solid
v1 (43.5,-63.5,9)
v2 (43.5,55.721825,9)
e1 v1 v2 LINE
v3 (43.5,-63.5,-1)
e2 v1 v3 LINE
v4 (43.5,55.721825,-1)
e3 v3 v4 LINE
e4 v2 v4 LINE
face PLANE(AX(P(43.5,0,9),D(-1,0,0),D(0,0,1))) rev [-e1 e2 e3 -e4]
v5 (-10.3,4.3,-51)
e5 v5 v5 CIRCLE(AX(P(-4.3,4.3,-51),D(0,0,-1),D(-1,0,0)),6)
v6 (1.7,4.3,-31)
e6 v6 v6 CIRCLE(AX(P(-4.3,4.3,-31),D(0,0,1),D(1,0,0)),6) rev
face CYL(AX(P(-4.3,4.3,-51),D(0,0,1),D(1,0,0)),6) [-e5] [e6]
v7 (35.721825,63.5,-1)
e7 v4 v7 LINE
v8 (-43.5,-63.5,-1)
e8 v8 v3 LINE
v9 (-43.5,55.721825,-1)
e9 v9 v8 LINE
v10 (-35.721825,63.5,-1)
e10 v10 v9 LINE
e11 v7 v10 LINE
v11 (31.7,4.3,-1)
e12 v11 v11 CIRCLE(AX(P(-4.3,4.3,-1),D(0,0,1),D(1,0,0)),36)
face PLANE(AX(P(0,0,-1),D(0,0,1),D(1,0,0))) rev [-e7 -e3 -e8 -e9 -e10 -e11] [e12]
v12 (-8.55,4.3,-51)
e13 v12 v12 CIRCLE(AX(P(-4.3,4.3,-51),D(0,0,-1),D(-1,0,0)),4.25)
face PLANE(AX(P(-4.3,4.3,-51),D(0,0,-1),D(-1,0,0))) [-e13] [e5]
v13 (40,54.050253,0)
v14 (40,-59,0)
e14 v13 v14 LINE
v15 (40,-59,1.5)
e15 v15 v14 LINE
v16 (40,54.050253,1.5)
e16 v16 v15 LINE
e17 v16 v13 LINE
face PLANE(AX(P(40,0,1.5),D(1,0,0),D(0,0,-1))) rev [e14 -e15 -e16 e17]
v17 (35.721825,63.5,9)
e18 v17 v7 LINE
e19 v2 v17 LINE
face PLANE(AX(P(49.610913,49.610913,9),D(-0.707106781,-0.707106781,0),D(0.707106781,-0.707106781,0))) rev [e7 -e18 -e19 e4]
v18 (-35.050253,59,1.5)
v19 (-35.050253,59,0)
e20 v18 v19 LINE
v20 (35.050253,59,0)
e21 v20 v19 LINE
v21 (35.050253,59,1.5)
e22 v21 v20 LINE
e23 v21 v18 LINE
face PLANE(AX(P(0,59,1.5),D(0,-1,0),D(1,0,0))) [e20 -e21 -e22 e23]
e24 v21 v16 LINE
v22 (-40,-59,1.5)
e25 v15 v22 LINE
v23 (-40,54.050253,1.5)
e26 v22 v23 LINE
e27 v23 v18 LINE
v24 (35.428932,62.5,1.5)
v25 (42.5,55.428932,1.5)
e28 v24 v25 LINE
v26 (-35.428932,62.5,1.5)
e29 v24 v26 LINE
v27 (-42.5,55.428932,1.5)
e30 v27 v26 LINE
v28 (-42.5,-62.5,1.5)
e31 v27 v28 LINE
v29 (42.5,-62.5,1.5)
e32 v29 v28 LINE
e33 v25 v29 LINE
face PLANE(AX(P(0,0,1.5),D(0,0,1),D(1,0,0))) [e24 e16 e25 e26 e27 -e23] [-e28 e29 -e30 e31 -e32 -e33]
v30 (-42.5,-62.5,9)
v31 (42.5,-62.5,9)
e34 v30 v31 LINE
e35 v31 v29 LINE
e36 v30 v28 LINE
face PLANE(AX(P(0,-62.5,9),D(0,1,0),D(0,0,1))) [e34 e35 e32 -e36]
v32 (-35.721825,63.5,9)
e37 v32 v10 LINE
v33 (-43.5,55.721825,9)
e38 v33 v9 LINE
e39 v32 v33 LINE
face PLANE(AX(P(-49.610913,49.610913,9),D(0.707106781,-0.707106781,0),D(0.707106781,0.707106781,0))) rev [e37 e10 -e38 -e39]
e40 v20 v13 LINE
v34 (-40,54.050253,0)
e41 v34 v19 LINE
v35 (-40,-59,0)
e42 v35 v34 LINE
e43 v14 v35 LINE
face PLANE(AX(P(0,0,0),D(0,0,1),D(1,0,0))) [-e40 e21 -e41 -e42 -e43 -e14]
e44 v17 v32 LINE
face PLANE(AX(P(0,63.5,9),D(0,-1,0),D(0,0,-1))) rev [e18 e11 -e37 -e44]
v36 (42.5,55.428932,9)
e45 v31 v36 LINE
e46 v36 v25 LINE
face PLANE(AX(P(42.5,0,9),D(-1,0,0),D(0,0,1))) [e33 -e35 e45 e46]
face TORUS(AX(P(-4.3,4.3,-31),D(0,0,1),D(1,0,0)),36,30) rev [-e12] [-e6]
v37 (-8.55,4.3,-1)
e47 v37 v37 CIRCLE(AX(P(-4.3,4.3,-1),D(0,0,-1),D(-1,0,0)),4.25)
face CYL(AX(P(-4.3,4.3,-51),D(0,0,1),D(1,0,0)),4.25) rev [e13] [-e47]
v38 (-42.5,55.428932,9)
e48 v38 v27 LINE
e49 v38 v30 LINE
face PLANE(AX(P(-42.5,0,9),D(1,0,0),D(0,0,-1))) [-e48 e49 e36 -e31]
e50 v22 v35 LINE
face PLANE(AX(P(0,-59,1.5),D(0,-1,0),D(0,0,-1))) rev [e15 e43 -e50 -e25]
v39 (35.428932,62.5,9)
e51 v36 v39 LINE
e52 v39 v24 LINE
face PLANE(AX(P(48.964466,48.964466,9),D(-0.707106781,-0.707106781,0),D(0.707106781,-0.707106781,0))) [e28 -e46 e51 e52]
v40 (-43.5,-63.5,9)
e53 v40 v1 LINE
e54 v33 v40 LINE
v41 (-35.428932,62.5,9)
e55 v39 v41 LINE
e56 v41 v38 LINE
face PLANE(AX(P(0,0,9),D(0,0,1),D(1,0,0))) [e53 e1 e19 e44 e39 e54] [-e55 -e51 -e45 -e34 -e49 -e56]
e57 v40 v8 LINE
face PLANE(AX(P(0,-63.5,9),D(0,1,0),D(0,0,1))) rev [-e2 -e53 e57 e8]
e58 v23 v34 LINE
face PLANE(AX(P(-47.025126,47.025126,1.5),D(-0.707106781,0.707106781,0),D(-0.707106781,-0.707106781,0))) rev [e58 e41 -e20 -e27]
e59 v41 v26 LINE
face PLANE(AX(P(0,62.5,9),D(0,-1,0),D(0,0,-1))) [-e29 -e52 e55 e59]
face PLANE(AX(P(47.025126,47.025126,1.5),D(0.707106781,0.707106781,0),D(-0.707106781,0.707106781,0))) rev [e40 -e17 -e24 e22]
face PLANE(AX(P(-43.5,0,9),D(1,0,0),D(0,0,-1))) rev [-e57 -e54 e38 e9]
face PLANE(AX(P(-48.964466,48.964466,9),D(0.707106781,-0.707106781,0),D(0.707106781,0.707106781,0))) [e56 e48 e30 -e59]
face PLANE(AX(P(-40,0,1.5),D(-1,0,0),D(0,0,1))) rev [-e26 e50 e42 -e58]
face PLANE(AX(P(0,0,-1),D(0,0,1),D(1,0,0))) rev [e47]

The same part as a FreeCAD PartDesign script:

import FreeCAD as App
import Part
import Sketcher

V = App.Vector


def edges_at(feature, points):
    """Names of the edges that pass closest to the given points."""
    edges = feature.Shape.Edges
    near = lambda p: min(range(len(edges)), key=lambda i: edges[i].distToShape(Part.Vertex(*p))[0])
    return sorted({f"Edge{near(p) + 1}" for p in points})


def add_polygon(sketch, points):
    """Adds a closed chain of lines whose ends are joined by coincident constraints."""
    first, n = sketch.GeometryCount, len(points)
    for a, b in zip(points, points[1:] + points[:1]):
        sketch.addGeometry(Part.LineSegment(App.Vector(*a, 0), App.Vector(*b, 0)), False)
    for i in range(n):
        sketch.addConstraint(Sketcher.Constraint("Coincident", first + i, 2, first + (i + 1) % n, 1))

doc = App.newDocument("Part")
body = doc.addObject("PartDesign::Body", "Body")

sketch1 = body.newObject("Sketcher::SketchObject", "Sketch")
sketch1.AttachmentSupport = (doc.getObject("XY_Plane"), [""])
sketch1.MapMode = "FlatFace"
add_polygon(sketch1, [(-42, -62), (42, -62), (42, 55), (35, 62), (-35, 62), (-42, 55)])
add_polygon(sketch1, [(-40, 54), (-35, 59), (35, 59), (40, 54), (40, -59), (-40, -59)])
sketch1.addConstraint([
    Sketcher.Constraint("Horizontal", 0),
    Sketcher.Constraint("Vertical", 1),
    Sketcher.Constraint("Horizontal", 3),
    Sketcher.Constraint("Vertical", 5),
    Sketcher.Constraint("Horizontal", 7),
    Sketcher.Constraint("Vertical", 9),
    Sketcher.Constraint("Horizontal", 10),
    Sketcher.Constraint("Vertical", 11),
    Sketcher.Constraint("Symmetric", 1, 2, 4, 2, -2),
    Sketcher.Constraint("Symmetric", 8, 2, 11, 2, -2),
    Sketcher.Constraint("Perpendicular", 2, 4),
    Sketcher.Constraint("Parallel", 4, 6),
    Sketcher.Constraint("Perpendicular", 6, 8),
    Sketcher.Constraint("Equal", 2, 4),
    Sketcher.Constraint("DistanceX", 0, 1, 0, 2, 85.0),
    Sketcher.Constraint("DistanceX", 10, 2, 10, 1, 80.0),
    Sketcher.Constraint("Distance", 2, 10.0),
    Sketcher.Constraint("Distance", 6, 7.0),
    Sketcher.Constraint("DistanceY", -1, 1, 6, 2, 59.0),
    Sketcher.Constraint("DistanceY", 9, 2, -1, 1, 59.0),
    Sketcher.Constraint("DistanceY", 0, 2, 2, 2, 125.0),
    Sketcher.Constraint("DistanceY", 0, 2, -1, 1, 62.5),
])
pad1 = body.newObject("PartDesign::Pad", "Pad")
pad1.Profile = sketch1
pad1.Length = 1.5

sketch2 = body.newObject("Sketcher::SketchObject", "Sketch001")
sketch2.AttachmentSupport = (doc.getObject("XY_Plane"), [""])
sketch2.MapMode = "FlatFace"
add_polygon(sketch2, [(-44, -64), (44, -64), (44, 56), (36, 64), (-36, 64), (-44, 56)])
add_polygon(sketch2, [(42, 55), (42, -62), (-42, -62), (-42, 55), (-35, 62), (35, 62)])
sketch2.addConstraint([
    Sketcher.Constraint("Horizontal", 0),
    Sketcher.Constraint("Vertical", 1),
    Sketcher.Constraint("Horizontal", 3),
    Sketcher.Constraint("Vertical", 5),
    Sketcher.Constraint("Vertical", 6),
    Sketcher.Constraint("Horizontal", 7),
    Sketcher.Constraint("Vertical", 8),
    Sketcher.Constraint("Horizontal", 10),
    Sketcher.Constraint("Symmetric", 1, 2, 4, 2, -2),
    Sketcher.Constraint("Symmetric", 8, 2, 11, 2, -2),
    Sketcher.Constraint("Perpendicular", 2, 4),
    Sketcher.Constraint("Parallel", 4, 9),
    Sketcher.Constraint("Perpendicular", 9, 11),
    Sketcher.Constraint("Equal", 2, 4),
    Sketcher.Constraint("DistanceX", 0, 1, 0, 2, 87.0),
    Sketcher.Constraint("DistanceX", 7, 2, 7, 1, 85.0),
    Sketcher.Constraint("Distance", 2, 11.0),
    Sketcher.Constraint("Distance", 9, 10.0),
    Sketcher.Constraint("DistanceY", 0, 2, 2, 2, 127.0),
    Sketcher.Constraint("DistanceY", 0, 2, 6, 2, 1.0),
    Sketcher.Constraint("DistanceY", 9, 2, 3, 2, 1.0),
    Sketcher.Constraint("DistanceY", 0, 2, -1, 1, 63.5),
])
pad2 = body.newObject("PartDesign::Pad", "Pad001")
pad2.Profile = sketch2
pad2.Length = 9

sketch3 = body.newObject("Sketcher::SketchObject", "Sketch002")
sketch3.AttachmentSupport = (doc.getObject("XY_Plane"), [""])
sketch3.MapMode = "FlatFace"
add_polygon(sketch3, [(-44, 56), (-44, -64), (44, -64), (44, 56), (36, 64), (-36, 64)])
sketch3.addConstraint([
    Sketcher.Constraint("Vertical", 0),
    Sketcher.Constraint("Horizontal", 1),
    Sketcher.Constraint("Vertical", 2),
    Sketcher.Constraint("Horizontal", 4),
    Sketcher.Constraint("Symmetric", 2, 2, 5, 2, -2),
    Sketcher.Constraint("Perpendicular", 3, 5),
    Sketcher.Constraint("Equal", 3, 5),
    Sketcher.Constraint("DistanceX", 1, 1, 1, 2, 87.0),
    Sketcher.Constraint("Distance", 3, 11.0),
    Sketcher.Constraint("DistanceY", 1, 2, 3, 2, 127.0),
    Sketcher.Constraint("DistanceY", 0, 2, -1, 1, 63.5),
])
pad3 = body.newObject("PartDesign::Pad", "Pad002")
pad3.Profile = sketch3
pad3.Length = 1
pad3.Reversed = True

sketch4 = body.newObject("Sketcher::SketchObject", "Sketch003")
sketch4.AttachmentSupport = (doc.getObject("XY_Plane"), [""])
sketch4.MapMode = "FlatFace"
sketch4.AttachmentOffset = App.Placement(V(0, 0, -1), App.Rotation())
sketch4.addGeometry([
    Part.Circle(V(-4.3, 4.3, 0), V(0, 0, 1), 6),
    Part.Circle(V(-4.3, 4.3, 0), V(0, 0, 1), 4.2),
], False)
sketch4.addConstraint([
    Sketcher.Constraint("Coincident", 1, 3, 0, 3),
    Sketcher.Constraint("Diameter", 0, 12.0),
    Sketcher.Constraint("Diameter", 1, 8.5),
    Sketcher.Constraint("DistanceX", 0, 3, -1, 1, 4.3),
    Sketcher.Constraint("DistanceY", -1, 1, 0, 3, 4.3),
])
pad4 = body.newObject("PartDesign::Pad", "Pad003")
pad4.Profile = sketch4
pad4.Length = 50
pad4.Reversed = True

sketch5 = body.newObject("Sketcher::SketchObject", "Sketch004")
sketch5.AttachmentSupport = (doc.getObject("XY_Plane"), [""])
sketch5.MapMode = "FlatFace"
sketch5.AttachmentOffset = App.Placement(V(0, 0, -1), App.Rotation())
sketch5.addGeometry([
    Part.Circle(V(-4.3, 4.3, 0), V(0, 0, 1), 6),
    Part.Circle(V(-4.3, 4.3, 0), V(0, 0, 1), 4.2),
], False)
sketch5.addConstraint([
    Sketcher.Constraint("Coincident", 1, 3, 0, 3),
    Sketcher.Constraint("Diameter", 0, 12.0),
    Sketcher.Constraint("Diameter", 1, 8.5),
    Sketcher.Constraint("DistanceX", 0, 3, -1, 1, 4.3),
    Sketcher.Constraint("DistanceY", -1, 1, 0, 3, 4.3),
])
pad5 = body.newObject("PartDesign::Pad", "Pad004")
pad5.Profile = sketch5
pad5.Length = 20
pad5.Reversed = True
doc.recompute()

fillet = body.newObject("PartDesign::Fillet", "Fillet")
fillet.Base = (pad5, edges_at(pad5, [(-10.3, 4.3, -1)]))
fillet.Radius = 30

doc.recompute()
